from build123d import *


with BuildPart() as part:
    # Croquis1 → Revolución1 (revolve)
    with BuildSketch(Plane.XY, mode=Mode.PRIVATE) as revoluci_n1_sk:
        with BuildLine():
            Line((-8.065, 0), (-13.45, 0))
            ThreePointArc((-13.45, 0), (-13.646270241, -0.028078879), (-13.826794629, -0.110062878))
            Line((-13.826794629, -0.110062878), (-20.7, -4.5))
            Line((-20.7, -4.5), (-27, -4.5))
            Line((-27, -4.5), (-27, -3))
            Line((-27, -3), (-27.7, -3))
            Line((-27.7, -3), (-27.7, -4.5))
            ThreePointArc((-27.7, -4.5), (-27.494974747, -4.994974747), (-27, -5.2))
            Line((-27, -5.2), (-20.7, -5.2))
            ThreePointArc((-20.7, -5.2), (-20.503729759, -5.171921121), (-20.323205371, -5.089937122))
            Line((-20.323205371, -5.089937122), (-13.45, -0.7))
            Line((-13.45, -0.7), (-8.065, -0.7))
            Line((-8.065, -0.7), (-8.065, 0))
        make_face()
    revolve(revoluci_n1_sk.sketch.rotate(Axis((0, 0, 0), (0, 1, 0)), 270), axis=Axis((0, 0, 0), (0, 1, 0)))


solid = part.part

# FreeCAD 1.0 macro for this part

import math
import FreeCAD as App
import Part
import Sketcher

V = App.Vector

doc = App.newDocument("Part")
params = doc.addObject("Spreadsheet::Sheet", "Params")
for row, (alias, value) in enumerate([
    ("sketch1_radius", "0.7 mm"),
    ("sketch1_width", "6.3 mm"),
    ("sketch1_height", "1.5 mm"),
    ("revolution_angle", "360 deg"),
], start=1):
    params.set(f"A{row}", alias)
    params.set(f"B{row}", "=" + value)
    params.setAlias(f"B{row}", alias)

body = doc.addObject("PartDesign::Body", "Body")

sketch1 = doc.addObject("Sketcher::SketchObject", "Sketch")
body.addObject(sketch1)
sketch1.AttachmentSupport = (doc.XY_Plane, [""])
sketch1.MapMode = "FlatFace"
sketch1.addGeometry([
    Part.LineSegment(V(-8.06, 0, 0), V(-13.45, 0, 0)),
    Part.ArcOfCircle(Part.Circle(V(-13.45, -0.7, 0), V(0, 0, 1), 0.7), math.radians(90), math.radians(123)),
    Part.LineSegment(V(-13.83, -0.11, 0), V(-20.7, -4.5, 0)),
    Part.LineSegment(V(-20.7, -4.5, 0), V(-27, -4.5, 0)),
    Part.LineSegment(V(-27, -4.5, 0), V(-27, -3, 0)),
    Part.LineSegment(V(-27, -3, 0), V(-27.7, -3, 0)),
    Part.LineSegment(V(-27.7, -3, 0), V(-27.7, -4.5, 0)),
    Part.ArcOfCircle(Part.Circle(V(-27, -4.5, 0), V(0, 0, 1), 0.7), math.radians(180), math.radians(270)),
    Part.LineSegment(V(-27, -5.2, 0), V(-20.7, -5.2, 0)),
    Part.ArcOfCircle(Part.Circle(V(-20.7, -4.5, 0), V(0, 0, 1), 0.7), math.radians(-90), math.radians(-57)),
    Part.LineSegment(V(-20.32, -5.09, 0), V(-13.45, -0.7, 0)),
    Part.LineSegment(V(-13.45, -0.7, 0), V(-8.06, -0.7, 0)),
    Part.LineSegment(V(-8.06, -0.7, 0), V(-8.06, 0, 0)),
], False)
sketch1.addConstraint([
    Sketcher.Constraint("Tangent", 0, 2, 1, 1),
    Sketcher.Constraint("Tangent", 1, 2, 2, 1),
    Sketcher.Constraint("Coincident", 2, 2, 3, 1),
    Sketcher.Constraint("Coincident", 3, 2, 4, 1),
    Sketcher.Constraint("Coincident", 4, 2, 5, 1),
    Sketcher.Constraint("Coincident", 5, 2, 6, 1),
    Sketcher.Constraint("Tangent", 6, 2, 7, 1),
    Sketcher.Constraint("Tangent", 7, 2, 8, 1),
    Sketcher.Constraint("Tangent", 8, 2, 9, 1),
    Sketcher.Constraint("Tangent", 9, 2, 10, 1),
    Sketcher.Constraint("Coincident", 10, 2, 11, 1),
    Sketcher.Constraint("Coincident", 11, 2, 12, 1),
    Sketcher.Constraint("Coincident", 12, 2, 0, 1),
    Sketcher.Constraint("Horizontal", 0),
    Sketcher.Constraint("Horizontal", 3),
    Sketcher.Constraint("Vertical", 4),
    Sketcher.Constraint("Horizontal", 5),
    Sketcher.Constraint("Vertical", 6),
    Sketcher.Constraint("Horizontal", 8),
    Sketcher.Constraint("Horizontal", 11),
    Sketcher.Constraint("Vertical", 12),
    Sketcher.Constraint("Coincident", 2, 2, 9, 3),
    Sketcher.Constraint("Coincident", 3, 2, 7, 3),
    Sketcher.Constraint("Coincident", 10, 2, 1, 3),
    Sketcher.Constraint("Equal", 1, 7),
    Sketcher.Constraint("PointOnObject", 0, 2, -1),
    Sketcher.Constraint("Radius", 1, 0.7),
    Sketcher.Constraint("DistanceX", 3, 2, 3, 1, 6.3),
    Sketcher.Constraint("DistanceY", 4, 1, 4, 2, 1.5),
    Sketcher.Constraint("DistanceX", 7, 3, -1, 1, 27.0),
    Sketcher.Constraint("DistanceY", 4, 2, -1, 1, 3.0),
    Sketcher.Constraint("DistanceX", 0, 2, 0, 1, 5.385),
    Sketcher.Constraint("DistanceX", 1, 3, -1, 1, 13.45),
])
sketch1.setExpression("Constraints[26]", "Params.sketch1_radius")
sketch1.setExpression("Constraints[27]", "Params.sketch1_width")
sketch1.setExpression("Constraints[28]", "Params.sketch1_height")
revolution = doc.addObject("PartDesign::Revolution", "Revolution")
body.addObject(revolution)
revolution.Profile = sketch1
revolution.ReferenceAxis = (sketch1, ["V_Axis"])
revolution.setExpression("Angle", "Params.revolution_angle")

doc.recompute()
